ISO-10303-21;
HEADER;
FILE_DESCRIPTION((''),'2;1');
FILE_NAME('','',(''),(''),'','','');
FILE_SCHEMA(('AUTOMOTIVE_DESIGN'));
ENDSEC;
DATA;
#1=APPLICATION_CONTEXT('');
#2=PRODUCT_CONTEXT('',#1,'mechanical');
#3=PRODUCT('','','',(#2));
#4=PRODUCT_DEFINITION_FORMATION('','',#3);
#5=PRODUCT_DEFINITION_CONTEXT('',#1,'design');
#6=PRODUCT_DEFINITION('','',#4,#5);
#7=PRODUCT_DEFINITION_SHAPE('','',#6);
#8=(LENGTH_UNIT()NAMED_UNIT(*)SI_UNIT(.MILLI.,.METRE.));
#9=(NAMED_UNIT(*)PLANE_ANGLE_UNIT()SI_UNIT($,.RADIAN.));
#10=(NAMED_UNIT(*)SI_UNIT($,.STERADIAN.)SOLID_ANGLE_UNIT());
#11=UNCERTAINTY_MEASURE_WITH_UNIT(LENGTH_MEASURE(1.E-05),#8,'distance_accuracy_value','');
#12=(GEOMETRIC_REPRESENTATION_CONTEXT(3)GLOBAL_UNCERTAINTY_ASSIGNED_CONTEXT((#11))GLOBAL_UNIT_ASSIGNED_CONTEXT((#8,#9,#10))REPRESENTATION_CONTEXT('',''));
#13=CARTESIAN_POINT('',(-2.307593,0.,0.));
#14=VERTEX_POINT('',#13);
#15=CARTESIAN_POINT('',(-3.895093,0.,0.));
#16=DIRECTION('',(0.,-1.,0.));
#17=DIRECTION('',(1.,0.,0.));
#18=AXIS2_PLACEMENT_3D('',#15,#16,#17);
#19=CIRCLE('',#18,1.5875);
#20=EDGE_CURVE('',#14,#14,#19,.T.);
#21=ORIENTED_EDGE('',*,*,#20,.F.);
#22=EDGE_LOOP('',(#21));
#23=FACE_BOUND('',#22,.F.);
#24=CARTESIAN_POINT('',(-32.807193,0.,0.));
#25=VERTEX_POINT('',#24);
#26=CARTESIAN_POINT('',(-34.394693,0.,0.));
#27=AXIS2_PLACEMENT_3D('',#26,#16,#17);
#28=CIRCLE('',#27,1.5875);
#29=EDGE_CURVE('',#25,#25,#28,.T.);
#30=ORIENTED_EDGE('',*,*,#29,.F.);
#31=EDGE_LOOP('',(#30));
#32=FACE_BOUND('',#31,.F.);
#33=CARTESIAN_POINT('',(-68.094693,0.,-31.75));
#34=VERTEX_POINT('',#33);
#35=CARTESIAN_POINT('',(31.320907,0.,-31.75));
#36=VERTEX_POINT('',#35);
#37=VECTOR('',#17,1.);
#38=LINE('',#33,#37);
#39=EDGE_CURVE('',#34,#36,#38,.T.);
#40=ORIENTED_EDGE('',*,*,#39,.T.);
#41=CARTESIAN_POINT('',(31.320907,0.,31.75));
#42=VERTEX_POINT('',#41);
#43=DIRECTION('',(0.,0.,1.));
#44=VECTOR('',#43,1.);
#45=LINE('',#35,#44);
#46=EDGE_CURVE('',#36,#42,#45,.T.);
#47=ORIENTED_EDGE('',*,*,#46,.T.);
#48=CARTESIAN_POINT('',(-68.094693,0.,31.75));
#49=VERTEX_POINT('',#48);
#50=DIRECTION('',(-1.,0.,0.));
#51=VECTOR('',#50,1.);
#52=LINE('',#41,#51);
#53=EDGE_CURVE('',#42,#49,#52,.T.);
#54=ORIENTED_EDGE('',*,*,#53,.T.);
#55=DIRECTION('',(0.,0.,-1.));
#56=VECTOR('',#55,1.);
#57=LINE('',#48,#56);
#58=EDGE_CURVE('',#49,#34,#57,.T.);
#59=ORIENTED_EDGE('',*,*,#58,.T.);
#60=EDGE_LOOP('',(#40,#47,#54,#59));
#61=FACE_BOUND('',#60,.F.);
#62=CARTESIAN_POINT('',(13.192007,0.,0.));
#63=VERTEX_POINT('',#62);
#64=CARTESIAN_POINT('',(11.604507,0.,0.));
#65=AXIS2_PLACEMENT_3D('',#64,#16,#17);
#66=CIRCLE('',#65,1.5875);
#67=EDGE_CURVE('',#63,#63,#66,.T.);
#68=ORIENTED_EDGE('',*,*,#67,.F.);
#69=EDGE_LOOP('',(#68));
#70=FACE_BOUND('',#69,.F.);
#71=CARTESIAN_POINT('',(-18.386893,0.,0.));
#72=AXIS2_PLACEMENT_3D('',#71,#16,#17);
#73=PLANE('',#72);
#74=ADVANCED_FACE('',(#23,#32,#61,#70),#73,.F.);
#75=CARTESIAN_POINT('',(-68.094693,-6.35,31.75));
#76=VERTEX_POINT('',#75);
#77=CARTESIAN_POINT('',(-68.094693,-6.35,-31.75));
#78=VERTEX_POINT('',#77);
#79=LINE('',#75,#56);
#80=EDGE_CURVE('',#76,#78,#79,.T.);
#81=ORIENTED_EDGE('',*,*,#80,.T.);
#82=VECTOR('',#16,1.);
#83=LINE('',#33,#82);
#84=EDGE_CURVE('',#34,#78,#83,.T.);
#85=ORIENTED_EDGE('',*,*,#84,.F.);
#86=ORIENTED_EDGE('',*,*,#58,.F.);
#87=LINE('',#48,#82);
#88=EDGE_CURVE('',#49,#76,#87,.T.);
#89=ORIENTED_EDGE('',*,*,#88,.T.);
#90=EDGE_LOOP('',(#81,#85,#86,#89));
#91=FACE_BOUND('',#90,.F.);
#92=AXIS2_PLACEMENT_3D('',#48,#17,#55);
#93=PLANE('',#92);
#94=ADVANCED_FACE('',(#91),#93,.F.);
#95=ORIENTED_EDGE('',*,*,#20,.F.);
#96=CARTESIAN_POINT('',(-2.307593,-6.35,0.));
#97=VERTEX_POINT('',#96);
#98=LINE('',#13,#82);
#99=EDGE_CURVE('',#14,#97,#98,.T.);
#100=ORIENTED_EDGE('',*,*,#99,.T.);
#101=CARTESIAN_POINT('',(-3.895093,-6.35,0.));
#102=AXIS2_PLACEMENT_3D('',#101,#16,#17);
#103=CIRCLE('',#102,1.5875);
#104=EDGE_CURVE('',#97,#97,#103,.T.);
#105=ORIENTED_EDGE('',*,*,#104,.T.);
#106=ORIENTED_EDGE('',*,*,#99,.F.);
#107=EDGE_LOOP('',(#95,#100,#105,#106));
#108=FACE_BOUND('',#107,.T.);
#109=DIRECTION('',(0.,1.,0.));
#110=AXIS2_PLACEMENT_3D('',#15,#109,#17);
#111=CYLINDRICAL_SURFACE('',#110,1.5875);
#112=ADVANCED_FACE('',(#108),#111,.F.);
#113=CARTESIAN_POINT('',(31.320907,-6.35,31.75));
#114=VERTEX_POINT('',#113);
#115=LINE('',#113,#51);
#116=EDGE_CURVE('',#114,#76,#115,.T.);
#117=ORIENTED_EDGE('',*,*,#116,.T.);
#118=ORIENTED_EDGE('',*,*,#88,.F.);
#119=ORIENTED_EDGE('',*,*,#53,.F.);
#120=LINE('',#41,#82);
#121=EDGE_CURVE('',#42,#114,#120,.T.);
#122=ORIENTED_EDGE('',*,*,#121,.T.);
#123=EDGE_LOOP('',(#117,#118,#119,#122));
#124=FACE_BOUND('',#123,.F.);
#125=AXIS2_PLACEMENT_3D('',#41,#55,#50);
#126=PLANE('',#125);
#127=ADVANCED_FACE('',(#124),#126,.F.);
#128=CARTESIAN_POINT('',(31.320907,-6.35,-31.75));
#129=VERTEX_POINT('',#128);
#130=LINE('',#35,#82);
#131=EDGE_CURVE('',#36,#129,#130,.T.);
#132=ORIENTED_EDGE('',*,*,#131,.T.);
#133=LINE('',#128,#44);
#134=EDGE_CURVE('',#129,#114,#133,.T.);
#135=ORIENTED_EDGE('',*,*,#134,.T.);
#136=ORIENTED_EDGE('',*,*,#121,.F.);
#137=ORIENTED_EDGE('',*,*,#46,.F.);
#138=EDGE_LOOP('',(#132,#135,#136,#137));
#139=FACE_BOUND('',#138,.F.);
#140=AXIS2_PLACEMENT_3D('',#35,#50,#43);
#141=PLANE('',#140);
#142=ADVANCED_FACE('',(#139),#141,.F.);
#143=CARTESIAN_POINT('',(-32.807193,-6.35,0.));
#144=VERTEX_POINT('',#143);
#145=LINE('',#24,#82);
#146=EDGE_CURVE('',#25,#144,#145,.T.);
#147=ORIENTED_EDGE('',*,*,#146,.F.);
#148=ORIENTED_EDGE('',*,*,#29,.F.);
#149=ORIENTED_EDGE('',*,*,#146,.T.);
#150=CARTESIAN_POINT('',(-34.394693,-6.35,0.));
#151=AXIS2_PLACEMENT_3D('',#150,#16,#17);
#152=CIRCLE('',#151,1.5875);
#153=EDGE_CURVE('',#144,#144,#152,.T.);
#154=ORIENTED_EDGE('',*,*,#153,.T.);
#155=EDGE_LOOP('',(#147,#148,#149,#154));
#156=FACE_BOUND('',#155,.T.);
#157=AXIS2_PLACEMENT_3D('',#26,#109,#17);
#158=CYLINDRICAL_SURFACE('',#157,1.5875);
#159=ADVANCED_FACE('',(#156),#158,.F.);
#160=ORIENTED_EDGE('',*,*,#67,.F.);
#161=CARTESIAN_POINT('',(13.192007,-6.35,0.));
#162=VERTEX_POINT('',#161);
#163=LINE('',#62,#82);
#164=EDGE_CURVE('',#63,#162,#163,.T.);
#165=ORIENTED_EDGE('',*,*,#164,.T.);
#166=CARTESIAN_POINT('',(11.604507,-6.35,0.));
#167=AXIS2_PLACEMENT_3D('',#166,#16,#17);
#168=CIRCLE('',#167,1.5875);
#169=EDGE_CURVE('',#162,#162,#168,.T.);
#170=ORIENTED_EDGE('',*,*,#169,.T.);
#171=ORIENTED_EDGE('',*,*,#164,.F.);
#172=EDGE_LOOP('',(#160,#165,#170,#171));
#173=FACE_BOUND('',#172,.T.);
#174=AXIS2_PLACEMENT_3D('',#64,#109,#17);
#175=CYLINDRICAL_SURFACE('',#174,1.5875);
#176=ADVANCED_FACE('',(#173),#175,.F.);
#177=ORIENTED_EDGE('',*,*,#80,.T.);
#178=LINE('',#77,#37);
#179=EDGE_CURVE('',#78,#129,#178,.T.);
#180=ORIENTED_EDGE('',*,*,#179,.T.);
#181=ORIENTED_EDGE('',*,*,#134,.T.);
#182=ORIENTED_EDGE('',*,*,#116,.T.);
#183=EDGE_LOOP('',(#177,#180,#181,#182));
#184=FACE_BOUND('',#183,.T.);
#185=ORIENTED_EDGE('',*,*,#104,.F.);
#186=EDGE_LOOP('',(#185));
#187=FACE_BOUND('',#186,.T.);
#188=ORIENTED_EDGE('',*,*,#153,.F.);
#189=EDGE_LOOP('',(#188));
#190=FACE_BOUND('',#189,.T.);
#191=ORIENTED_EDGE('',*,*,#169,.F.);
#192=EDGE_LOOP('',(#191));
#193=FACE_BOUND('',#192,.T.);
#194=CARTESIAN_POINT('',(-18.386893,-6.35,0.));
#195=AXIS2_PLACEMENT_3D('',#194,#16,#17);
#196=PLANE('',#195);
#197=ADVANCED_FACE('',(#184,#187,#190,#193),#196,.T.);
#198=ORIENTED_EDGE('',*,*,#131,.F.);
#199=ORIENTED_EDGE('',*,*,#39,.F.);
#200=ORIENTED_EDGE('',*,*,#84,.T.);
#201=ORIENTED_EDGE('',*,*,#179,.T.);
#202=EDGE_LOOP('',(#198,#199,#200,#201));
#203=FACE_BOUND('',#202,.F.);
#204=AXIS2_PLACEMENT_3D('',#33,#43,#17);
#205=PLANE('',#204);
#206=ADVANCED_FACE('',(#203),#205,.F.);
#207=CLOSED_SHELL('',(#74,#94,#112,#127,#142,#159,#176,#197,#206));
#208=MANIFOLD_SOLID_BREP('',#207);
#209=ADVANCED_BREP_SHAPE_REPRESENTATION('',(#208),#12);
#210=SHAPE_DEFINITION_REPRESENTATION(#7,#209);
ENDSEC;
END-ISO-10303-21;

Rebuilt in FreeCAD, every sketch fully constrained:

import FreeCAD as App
import Part
import Sketcher
Q = App.Units.Quantity


def add_polygon(sketch, points):
    """Adds a closed chain of lines whose ends are joined by coincident constraints."""
    first, n = sketch.GeometryCount, len(points)
    for a, b in zip(points, points[1:] + points[:1]):
        sketch.addGeometry(Part.LineSegment(App.Vector(*a, 0), App.Vector(*b, 0)), False)
    for i in range(n):
        sketch.addConstraint(Sketcher.Constraint("Coincident", first + i, 2, first + (i + 1) % n, 1))

doc = App.newDocument("Part")
body = doc.addObject("PartDesign::Body", "Body")

# Sketch on XZ plane
sketch1 = body.newObject("Sketcher::SketchObject", "Sketch")
sketch1.AttachmentSupport = (doc.getObject("XZ_Plane"), [""])
sketch1.MapMode = "FlatFace"
add_polygon(sketch1, [(-68.1, 31.8), (-68.1, -31.8), (31.3, -31.8), (31.3, 31.8)])  # lines 0-3
sketch1.addGeometry(Part.Circle(App.Vector(-34.4, 0, 0), App.Vector(0, 0, 1), 1.6), False)  # 4
sketch1.addGeometry(Part.Circle(App.Vector(-3.9, 0, 0), App.Vector(0, 0, 1), 1.6), False)  # 5
sketch1.addGeometry(Part.Circle(App.Vector(11.6, 0, 0), App.Vector(0, 0, 1), 1.6), False)  # 6
sketch1.addConstraint([
    Sketcher.Constraint("Vertical", 0),
    Sketcher.Constraint("Horizontal", 1),
    Sketcher.Constraint("Vertical", 2),
    Sketcher.Constraint("Horizontal", 3),
    Sketcher.Constraint("Equal", 4, 5),
    Sketcher.Constraint("Equal", 5, 6),
    Sketcher.Constraint("PointOnObject", 4, 3, -1),
    Sketcher.Constraint("PointOnObject", 5, 3, -1),
    Sketcher.Constraint("PointOnObject", 6, 3, -1),
    Sketcher.Constraint("Diameter", 4, Q("0.125 in")),
    Sketcher.Constraint("DistanceY", 0, 2, 0, 1, Q("2.5 in")),
    Sketcher.Constraint("DistanceX", 1, 1, 1, 2, Q("3.914 in")),
    Sketcher.Constraint("DistanceY", 0, 2, -1, 1, Q("1.25 in")),
    Sketcher.Constraint("DistanceX", 4, 3, 5, 3, 30.4996),
    Sketcher.Constraint("DistanceX", 5, 3, 6, 3, 15.4996),
    Sketcher.Constraint("DistanceX", 0, 2, 4, 3, 33.7),
    Sketcher.Constraint("DistanceX", 4, 3, -1, 1, 34.394693),
])
pad1 = body.newObject("PartDesign::Pad", "Pad")
pad1.Profile = sketch1
pad1.Length = Q("0.25 in")

doc.recompute()
